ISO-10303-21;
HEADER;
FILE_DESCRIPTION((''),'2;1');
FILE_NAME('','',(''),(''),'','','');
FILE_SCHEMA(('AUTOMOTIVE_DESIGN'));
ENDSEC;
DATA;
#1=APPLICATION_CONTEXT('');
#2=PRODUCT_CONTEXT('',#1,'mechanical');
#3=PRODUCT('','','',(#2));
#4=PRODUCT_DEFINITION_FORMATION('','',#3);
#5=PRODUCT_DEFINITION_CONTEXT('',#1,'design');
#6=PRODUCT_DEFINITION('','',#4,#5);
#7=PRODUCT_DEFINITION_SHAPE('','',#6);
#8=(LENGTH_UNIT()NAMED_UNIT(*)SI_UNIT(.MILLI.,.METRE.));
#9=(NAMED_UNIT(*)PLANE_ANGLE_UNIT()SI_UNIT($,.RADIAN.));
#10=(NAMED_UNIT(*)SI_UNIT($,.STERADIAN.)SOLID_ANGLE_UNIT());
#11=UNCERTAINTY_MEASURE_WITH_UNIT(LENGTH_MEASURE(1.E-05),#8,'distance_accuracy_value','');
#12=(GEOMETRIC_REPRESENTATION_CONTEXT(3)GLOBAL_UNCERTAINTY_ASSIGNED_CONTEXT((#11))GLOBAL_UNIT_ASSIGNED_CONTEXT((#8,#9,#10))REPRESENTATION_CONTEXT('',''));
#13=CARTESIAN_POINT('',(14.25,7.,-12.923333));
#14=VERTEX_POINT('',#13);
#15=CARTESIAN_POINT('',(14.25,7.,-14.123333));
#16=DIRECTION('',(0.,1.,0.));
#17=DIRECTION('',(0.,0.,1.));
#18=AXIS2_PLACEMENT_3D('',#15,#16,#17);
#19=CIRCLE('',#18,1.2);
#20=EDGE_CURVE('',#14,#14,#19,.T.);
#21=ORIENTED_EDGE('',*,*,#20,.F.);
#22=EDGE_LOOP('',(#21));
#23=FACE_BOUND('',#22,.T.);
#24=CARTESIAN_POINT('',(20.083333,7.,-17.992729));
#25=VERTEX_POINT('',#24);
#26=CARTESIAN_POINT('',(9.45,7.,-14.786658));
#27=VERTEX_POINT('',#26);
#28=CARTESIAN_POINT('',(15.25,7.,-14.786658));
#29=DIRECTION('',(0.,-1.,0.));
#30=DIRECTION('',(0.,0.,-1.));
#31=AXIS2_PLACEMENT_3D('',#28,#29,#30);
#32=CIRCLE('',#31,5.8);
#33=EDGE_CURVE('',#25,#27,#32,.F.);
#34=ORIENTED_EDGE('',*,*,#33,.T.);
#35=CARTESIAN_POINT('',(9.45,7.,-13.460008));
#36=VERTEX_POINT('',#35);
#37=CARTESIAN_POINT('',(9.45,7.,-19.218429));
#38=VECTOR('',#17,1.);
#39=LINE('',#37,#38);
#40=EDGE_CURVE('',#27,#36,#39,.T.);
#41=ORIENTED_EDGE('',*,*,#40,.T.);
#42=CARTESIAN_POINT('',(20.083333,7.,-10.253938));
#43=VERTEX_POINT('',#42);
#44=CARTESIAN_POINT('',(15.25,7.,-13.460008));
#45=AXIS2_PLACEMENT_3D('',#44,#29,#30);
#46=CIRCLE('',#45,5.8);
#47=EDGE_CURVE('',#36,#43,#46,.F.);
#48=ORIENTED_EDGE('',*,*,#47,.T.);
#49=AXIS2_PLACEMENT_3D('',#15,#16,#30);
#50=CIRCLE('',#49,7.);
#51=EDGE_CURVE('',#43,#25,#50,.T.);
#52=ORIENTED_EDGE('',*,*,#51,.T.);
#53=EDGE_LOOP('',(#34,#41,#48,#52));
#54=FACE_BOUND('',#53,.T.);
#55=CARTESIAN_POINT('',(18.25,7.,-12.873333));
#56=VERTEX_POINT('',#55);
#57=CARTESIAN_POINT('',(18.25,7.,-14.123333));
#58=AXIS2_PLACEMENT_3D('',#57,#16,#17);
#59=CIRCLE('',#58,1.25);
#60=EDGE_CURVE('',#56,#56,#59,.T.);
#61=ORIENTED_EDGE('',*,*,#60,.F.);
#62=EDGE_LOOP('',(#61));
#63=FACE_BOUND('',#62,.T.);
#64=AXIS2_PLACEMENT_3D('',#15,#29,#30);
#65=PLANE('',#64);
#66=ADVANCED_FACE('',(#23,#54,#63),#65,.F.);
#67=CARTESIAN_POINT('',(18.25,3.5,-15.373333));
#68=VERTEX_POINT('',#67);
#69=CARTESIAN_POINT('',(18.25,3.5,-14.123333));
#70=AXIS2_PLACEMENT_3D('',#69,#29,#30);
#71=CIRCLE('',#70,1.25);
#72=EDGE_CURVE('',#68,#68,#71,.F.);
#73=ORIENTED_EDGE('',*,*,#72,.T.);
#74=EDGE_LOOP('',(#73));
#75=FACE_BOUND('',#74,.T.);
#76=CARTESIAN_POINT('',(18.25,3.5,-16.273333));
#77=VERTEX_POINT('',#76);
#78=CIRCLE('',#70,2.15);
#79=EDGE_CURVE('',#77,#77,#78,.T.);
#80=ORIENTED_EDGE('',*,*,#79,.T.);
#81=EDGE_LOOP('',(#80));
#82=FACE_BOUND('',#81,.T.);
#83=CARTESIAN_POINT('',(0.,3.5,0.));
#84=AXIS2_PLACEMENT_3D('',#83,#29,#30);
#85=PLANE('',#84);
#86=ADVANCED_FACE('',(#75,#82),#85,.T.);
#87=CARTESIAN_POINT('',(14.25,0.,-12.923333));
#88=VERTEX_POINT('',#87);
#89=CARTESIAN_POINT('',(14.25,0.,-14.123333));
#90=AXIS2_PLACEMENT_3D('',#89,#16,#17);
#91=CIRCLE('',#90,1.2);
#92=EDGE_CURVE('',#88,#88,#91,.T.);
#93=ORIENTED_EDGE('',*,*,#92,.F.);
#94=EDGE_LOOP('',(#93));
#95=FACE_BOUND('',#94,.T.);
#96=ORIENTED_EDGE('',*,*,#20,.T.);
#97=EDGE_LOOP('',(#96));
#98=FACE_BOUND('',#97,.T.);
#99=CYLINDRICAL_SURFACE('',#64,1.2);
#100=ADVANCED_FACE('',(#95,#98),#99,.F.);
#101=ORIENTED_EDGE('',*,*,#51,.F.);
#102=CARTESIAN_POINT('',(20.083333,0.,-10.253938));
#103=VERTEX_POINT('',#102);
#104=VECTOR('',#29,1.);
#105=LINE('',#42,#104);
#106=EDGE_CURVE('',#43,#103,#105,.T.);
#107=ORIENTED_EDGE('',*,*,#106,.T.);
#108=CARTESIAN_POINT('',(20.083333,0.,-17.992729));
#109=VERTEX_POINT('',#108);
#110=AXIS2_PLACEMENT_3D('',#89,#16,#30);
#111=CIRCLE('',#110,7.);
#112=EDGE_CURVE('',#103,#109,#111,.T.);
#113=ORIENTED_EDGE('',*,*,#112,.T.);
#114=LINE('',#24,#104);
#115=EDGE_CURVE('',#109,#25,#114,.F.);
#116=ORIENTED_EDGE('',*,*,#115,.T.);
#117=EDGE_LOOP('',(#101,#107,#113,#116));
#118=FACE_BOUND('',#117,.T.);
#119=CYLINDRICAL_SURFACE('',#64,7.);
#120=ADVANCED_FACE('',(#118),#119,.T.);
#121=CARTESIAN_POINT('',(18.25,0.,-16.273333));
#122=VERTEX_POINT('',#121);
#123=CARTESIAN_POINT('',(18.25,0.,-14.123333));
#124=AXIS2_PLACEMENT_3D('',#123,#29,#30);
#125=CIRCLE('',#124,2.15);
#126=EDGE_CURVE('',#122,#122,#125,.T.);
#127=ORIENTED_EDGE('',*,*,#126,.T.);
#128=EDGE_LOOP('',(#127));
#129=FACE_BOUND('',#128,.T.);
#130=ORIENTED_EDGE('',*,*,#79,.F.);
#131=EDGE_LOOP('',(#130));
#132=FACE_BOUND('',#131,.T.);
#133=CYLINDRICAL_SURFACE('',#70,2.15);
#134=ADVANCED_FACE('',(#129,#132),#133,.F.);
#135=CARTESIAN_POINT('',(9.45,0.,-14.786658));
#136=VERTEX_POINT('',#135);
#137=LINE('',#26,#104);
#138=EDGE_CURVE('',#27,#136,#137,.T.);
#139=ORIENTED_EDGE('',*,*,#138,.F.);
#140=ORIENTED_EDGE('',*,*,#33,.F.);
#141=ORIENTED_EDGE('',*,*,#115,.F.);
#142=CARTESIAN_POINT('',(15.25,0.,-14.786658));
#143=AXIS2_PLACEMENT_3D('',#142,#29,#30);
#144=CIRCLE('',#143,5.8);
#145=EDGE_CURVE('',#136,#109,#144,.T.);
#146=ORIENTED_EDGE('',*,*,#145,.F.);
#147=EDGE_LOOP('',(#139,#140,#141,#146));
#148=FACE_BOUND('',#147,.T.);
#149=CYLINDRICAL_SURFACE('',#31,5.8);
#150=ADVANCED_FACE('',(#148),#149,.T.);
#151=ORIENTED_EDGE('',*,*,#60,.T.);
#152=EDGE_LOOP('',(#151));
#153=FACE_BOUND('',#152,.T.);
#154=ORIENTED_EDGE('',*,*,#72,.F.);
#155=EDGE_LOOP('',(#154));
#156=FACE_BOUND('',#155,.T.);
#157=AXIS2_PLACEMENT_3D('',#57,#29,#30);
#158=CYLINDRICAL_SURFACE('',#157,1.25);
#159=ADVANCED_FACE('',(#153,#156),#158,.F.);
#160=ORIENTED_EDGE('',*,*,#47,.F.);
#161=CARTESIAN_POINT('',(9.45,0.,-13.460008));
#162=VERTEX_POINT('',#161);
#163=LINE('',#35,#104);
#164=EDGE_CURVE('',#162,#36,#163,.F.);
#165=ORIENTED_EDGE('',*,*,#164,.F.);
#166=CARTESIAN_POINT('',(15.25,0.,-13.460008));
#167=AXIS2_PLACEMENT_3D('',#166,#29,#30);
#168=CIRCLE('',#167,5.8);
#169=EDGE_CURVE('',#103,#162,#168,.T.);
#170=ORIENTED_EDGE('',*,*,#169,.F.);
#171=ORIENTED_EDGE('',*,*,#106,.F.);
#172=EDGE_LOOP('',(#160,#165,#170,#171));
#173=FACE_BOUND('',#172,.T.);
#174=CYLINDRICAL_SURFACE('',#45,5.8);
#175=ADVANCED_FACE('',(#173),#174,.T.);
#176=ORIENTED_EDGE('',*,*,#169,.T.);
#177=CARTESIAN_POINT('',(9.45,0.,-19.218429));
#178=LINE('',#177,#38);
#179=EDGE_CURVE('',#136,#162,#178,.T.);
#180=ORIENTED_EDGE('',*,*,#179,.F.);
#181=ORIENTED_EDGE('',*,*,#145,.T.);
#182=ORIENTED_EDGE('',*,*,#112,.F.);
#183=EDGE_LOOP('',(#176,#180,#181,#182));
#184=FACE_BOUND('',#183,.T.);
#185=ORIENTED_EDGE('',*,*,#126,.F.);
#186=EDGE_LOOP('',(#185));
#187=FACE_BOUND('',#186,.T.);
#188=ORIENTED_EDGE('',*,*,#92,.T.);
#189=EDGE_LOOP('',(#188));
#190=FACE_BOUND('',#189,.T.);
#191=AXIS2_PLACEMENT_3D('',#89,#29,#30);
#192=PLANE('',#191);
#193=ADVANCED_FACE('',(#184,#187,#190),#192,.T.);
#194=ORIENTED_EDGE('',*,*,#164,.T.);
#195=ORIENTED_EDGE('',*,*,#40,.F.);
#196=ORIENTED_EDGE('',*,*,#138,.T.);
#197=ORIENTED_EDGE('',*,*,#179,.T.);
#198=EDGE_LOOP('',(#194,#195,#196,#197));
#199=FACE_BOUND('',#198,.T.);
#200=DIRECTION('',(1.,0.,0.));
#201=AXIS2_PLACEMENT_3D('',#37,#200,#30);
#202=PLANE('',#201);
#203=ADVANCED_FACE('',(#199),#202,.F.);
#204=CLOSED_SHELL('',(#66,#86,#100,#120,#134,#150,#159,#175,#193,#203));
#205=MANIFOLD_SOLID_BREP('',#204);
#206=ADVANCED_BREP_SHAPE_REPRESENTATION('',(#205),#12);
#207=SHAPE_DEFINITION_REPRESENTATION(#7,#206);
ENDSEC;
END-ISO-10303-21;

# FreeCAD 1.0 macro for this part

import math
import FreeCAD as App
import Part
import Sketcher

V = App.Vector


def edges_at(feature, points):
    """Names of the edges that pass closest to the given points."""
    edges = feature.Shape.Edges
    near = lambda p: min(range(len(edges)), key=lambda i: edges[i].distToShape(Part.Vertex(*p))[0])
    return sorted({f"Edge{near(p) + 1}" for p in points})

doc = App.newDocument("Part")
body = doc.addObject("PartDesign::Body", "Body")

# Sketch on XZ plane
sketch1 = body.newObject("Sketcher::SketchObject", "Sketch")
sketch1.AttachmentSupport = (doc.getObject("XZ_Plane"), [""])
sketch1.MapMode = "FlatFace"
sketch1.addGeometry([
    Part.LineSegment(V(9.4, -19.2, 0), V(9.4, -9, 0)),
    Part.ArcOfCircle(Part.Circle(V(14.2, -14.1, 0), V(0, 0, 1), 7), math.radians(-133), math.radians(133)),
    Part.Circle(V(14.2, -14.1, 0), V(0, 0, 1), 1.2),
    Part.Circle(V(18.2, -14.1, 0), V(0, 0, 1), 1.2),
], False)
sketch1.addConstraint([
    Sketcher.Constraint("Coincident", 0, 1, 1, 1),
    Sketcher.Constraint("Coincident", 1, 2, 0, 2),
    Sketcher.Constraint("Vertical", 0),
    Sketcher.Constraint("Coincident", 2, 3, 1, 3),
    Sketcher.Constraint("Horizontal", 2, 3, 3, 3),
    Sketcher.Constraint("Radius", 1, 7.0),
    Sketcher.Constraint("Diameter", 2, 2.4),
    Sketcher.Constraint("Diameter", 3, 2.5),
    Sketcher.Constraint("DistanceX", 1, 3, 3, 3, 4.0),
    Sketcher.Constraint("DistanceX", 0, 1, 1, 3, 4.8),
    Sketcher.Constraint("DistanceX", -1, 1, 1, 3, 14.25),
    Sketcher.Constraint("DistanceY", 0, 1, -1, 1, 19.218429),
])
pad1 = body.newObject("PartDesign::Pad", "Pad")
pad1.Profile = sketch1
pad1.Length = 7
pad1.Reversed = True

# Sketch on XZ plane
sketch2 = body.newObject("Sketcher::SketchObject", "Sketch001")
sketch2.AttachmentSupport = (doc.getObject("XZ_Plane"), [""])
sketch2.MapMode = "FlatFace"
sketch2.addGeometry(Part.Circle(V(18.2, -14.1, 0), V(0, 0, 1), 2.1), False)
sketch2.addConstraint([
    Sketcher.Constraint("Diameter", 0, 4.3),
    Sketcher.Constraint("DistanceX", -1, 1, 0, 3, 18.25),
    Sketcher.Constraint("DistanceY", 0, 3, -1, 1, 14.123333),
])
pocket1 = body.newObject("PartDesign::Pocket", "Pocket")
pocket1.Profile = sketch2
pocket1.Length = 3.5
doc.recompute()

fillet = body.newObject("PartDesign::Fillet", "Fillet")
fillet.Base = (pocket1, edges_at(pocket1, [(9.45, 3.5, -9.028), (9.45, 3.5, -19.218)]))
fillet.Radius = 5.8

doc.recompute()
